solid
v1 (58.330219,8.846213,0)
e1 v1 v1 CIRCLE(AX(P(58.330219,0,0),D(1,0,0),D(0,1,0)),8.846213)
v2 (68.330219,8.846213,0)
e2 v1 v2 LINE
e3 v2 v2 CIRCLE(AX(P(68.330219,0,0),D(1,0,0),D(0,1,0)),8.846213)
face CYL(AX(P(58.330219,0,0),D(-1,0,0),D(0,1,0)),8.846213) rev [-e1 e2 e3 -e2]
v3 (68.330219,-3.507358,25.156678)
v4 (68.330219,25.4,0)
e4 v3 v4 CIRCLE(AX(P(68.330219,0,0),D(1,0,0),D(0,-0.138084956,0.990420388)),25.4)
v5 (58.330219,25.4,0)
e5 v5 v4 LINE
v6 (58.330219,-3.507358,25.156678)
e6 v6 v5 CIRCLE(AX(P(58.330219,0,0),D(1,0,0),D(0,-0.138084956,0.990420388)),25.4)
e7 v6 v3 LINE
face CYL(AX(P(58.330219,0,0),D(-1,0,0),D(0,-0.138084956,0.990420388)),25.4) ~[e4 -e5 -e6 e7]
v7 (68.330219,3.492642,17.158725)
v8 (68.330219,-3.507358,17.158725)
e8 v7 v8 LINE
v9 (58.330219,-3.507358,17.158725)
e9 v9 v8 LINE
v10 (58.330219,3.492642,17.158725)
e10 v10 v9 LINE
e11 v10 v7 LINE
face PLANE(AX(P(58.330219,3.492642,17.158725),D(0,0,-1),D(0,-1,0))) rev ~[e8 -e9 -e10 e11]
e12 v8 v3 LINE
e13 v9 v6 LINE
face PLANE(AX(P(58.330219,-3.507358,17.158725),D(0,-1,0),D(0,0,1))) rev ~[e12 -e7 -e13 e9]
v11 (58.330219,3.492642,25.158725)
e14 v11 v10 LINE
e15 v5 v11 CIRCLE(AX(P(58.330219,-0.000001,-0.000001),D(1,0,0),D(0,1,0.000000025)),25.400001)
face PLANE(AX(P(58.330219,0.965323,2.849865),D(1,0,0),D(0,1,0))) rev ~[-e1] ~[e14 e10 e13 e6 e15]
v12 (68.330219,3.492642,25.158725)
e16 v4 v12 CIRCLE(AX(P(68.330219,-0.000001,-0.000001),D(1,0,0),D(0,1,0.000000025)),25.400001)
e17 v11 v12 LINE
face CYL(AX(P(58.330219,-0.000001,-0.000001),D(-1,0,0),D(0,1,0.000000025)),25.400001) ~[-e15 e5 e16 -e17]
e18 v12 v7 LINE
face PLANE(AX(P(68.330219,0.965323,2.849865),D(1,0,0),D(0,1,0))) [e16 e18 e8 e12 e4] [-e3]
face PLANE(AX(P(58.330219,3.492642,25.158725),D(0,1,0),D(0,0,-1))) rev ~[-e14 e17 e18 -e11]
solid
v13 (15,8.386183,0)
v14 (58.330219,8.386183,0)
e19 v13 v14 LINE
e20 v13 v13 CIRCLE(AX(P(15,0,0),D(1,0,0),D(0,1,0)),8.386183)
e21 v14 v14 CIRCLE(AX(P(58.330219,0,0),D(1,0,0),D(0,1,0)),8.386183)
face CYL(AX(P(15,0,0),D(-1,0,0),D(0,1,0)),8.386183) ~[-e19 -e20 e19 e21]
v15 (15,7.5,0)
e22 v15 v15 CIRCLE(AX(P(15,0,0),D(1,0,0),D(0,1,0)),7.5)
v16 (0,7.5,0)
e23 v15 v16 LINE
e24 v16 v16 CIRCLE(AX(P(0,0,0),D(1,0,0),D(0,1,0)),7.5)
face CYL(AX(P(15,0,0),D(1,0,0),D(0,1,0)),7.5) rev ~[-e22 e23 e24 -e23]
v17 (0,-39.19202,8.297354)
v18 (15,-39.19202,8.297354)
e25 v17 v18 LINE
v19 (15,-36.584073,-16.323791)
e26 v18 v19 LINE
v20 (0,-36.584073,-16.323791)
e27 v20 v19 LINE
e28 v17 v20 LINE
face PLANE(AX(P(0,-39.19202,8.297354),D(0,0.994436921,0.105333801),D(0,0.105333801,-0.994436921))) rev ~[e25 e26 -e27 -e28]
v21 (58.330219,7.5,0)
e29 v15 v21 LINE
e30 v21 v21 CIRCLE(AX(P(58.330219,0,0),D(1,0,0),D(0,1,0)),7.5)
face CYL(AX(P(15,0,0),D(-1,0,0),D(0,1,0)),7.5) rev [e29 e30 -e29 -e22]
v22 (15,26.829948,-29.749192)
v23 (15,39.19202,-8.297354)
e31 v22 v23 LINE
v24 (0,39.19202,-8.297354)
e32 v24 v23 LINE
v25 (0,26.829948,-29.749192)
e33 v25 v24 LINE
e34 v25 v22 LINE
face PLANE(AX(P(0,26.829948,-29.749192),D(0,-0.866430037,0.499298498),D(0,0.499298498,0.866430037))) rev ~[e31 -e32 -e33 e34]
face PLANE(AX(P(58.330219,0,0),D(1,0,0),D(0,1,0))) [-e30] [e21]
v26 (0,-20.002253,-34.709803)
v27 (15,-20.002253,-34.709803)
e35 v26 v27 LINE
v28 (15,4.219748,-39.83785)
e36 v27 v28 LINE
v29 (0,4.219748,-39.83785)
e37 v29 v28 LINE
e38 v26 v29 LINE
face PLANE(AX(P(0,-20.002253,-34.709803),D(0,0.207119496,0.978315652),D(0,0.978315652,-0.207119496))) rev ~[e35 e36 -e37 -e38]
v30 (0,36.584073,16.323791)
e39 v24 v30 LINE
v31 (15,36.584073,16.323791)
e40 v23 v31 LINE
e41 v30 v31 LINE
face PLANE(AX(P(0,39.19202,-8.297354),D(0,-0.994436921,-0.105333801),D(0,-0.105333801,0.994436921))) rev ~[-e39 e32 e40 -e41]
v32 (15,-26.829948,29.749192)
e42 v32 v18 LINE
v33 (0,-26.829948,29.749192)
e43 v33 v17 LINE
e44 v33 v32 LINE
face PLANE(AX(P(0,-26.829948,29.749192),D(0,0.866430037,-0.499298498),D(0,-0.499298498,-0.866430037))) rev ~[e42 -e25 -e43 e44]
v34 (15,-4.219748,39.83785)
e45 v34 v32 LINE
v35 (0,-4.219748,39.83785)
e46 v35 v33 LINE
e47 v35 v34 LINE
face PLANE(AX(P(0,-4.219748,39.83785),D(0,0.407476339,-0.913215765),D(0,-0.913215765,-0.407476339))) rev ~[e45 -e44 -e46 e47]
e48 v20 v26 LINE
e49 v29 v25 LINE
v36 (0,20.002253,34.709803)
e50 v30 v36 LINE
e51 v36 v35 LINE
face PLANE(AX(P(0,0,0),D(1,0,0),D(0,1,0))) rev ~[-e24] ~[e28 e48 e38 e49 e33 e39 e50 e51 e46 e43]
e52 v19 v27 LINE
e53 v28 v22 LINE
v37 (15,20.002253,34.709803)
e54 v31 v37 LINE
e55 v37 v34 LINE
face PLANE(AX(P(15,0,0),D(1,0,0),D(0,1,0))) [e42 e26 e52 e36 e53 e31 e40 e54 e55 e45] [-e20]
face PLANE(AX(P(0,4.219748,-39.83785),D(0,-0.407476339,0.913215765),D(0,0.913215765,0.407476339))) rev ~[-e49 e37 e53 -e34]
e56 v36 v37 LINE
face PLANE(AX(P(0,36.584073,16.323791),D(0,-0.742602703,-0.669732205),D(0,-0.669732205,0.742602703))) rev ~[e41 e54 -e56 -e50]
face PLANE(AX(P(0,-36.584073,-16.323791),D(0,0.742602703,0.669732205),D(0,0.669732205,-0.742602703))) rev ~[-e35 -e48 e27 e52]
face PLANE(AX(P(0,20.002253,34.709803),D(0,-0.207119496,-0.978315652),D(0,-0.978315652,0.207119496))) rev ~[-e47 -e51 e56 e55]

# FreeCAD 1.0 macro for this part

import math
import FreeCAD as App
import Part
import Sketcher
from FreeCAD import Vector

doc = App.newDocument("Part")
body = doc.addObject("PartDesign::Body", "Body")

sketch1 = body.newObject("Sketcher::SketchObject", "Sketch")
sketch1.AttachmentSupport = (doc.getObject("YZ_Plane"), [""])
sketch1.MapMode = "FlatFace"
sketch1.addGeometry(Part.LineSegment(Vector(27, -30, 0), Vector(39, -8, 0)), False)
sketch1.addGeometry(Part.LineSegment(Vector(39, -8, 0), Vector(37, 16, 0)), False)
sketch1.addGeometry(Part.LineSegment(Vector(37, 16, 0), Vector(20, 35, 0)), False)
sketch1.addGeometry(Part.LineSegment(Vector(20, 35, 0), Vector(-4, 40, 0)), False)
sketch1.addGeometry(Part.LineSegment(Vector(-4, 40, 0), Vector(-27, 30, 0)), False)
sketch1.addGeometry(Part.LineSegment(Vector(-27, 30, 0), Vector(-39, 8, 0)), False)
sketch1.addGeometry(Part.LineSegment(Vector(-39, 8, 0), Vector(-37, -16, 0)), False)
sketch1.addGeometry(Part.LineSegment(Vector(-37, -16, 0), Vector(-20, -35, 0)), False)
sketch1.addGeometry(Part.LineSegment(Vector(-20, -35, 0), Vector(4, -40, 0)), False)
sketch1.addGeometry(Part.LineSegment(Vector(4, -40, 0), Vector(27, -30, 0)), False)
sketch1.addConstraint(Sketcher.Constraint("Coincident", 0, 2, 1, 1))
sketch1.addConstraint(Sketcher.Constraint("Coincident", 1, 2, 2, 1))
sketch1.addConstraint(Sketcher.Constraint("Coincident", 2, 2, 3, 1))
sketch1.addConstraint(Sketcher.Constraint("Coincident", 3, 2, 4, 1))
sketch1.addConstraint(Sketcher.Constraint("Coincident", 4, 2, 5, 1))
sketch1.addConstraint(Sketcher.Constraint("Coincident", 5, 2, 6, 1))
sketch1.addConstraint(Sketcher.Constraint("Coincident", 6, 2, 7, 1))
sketch1.addConstraint(Sketcher.Constraint("Coincident", 7, 2, 8, 1))
sketch1.addConstraint(Sketcher.Constraint("Coincident", 8, 2, 9, 1))
sketch1.addConstraint(Sketcher.Constraint("Coincident", 9, 2, 0, 1))
sketch1.addConstraint(Sketcher.Constraint("Symmetric", 0, 2, 5, 2, -1, 1))
sketch1.addConstraint(Sketcher.Constraint("Symmetric", 1, 2, 6, 2, -1, 1))
sketch1.addConstraint(Sketcher.Constraint("Symmetric", 2, 2, 7, 2, -1, 1))
sketch1.addConstraint(Sketcher.Constraint("Symmetric", 3, 2, 8, 2, -1, 1))
sketch1.addConstraint(Sketcher.Constraint("Symmetric", 4, 2, 9, 2, -1, 1))
sketch1.addConstraint(Sketcher.Constraint("Equal", 0, 1))
sketch1.addConstraint(Sketcher.Constraint("Equal", 1, 2))
sketch1.addConstraint(Sketcher.Constraint("Equal", 2, 3))
sketch1.addConstraint(Sketcher.Constraint("Equal", 3, 4))
sketch1.addConstraint(Sketcher.Constraint("DistanceX", 3, 2, 2, 2, 24.222001))
sketch1.addConstraint(Sketcher.Constraint("DistanceX", 4, 2, 3, 2, 22.6102))
sketch1.addConstraint(Sketcher.Constraint("DistanceY", 1, 2, 4, 2, 13.425401))
sketch1.addConstraint(Sketcher.Constraint("Distance", 0, 24.758881))
sketch1.addConstraint(Sketcher.Constraint("DistanceX", -1, 1, 0, 2, 39.19202))
sketch1.addConstraint(Sketcher.Constraint("DistanceY", -1, 1, 1, 2, 16.323791))
pad1 = body.newObject("PartDesign::Pad", "Pad")
pad1.Profile = sketch1
pad1.Length = 15

sketch2 = body.newObject("Sketcher::SketchObject", "Sketch001")
sketch2.AttachmentSupport = (doc.getObject("YZ_Plane"), [""])
sketch2.MapMode = "FlatFace"
sketch2.AttachmentOffset = App.Placement(Vector(0, 0, 15), App.Rotation())
sketch2.addGeometry(Part.Circle(Vector(0, 0, 0), Vector(0, 0, 1), 8), False)
sketch2.addConstraint(Sketcher.Constraint("Coincident", 0, 3, -1, 1))
sketch2.addConstraint(Sketcher.Constraint("Diameter", 0, 15.0))
pocket1 = body.newObject("PartDesign::Pocket", "Pocket")
pocket1.Profile = sketch2
pocket1.Length = 25.4

sketch3 = body.newObject("Sketcher::SketchObject", "Sketch002")
sketch3.AttachmentSupport = (doc.getObject("YZ_Plane"), [""])
sketch3.MapMode = "FlatFace"
sketch3.AttachmentOffset = App.Placement(Vector(0, 0, 15), App.Rotation())
sketch3.addGeometry(Part.Circle(Vector(0, 0, 0), Vector(0, 0, 1), 8), False)
sketch3.addGeometry(Part.Circle(Vector(0, 0, 0), Vector(0, 0, 1), 8), False)
sketch3.addConstraint(Sketcher.Constraint("Coincident", 0, 3, -1, 1))
sketch3.addConstraint(Sketcher.Constraint("Coincident", 1, 3, -1, 1))
sketch3.addConstraint(Sketcher.Constraint("Diameter", 1, 15.0))
sketch3.addConstraint(Sketcher.Constraint("Diameter", 0, 16.772366))
pad2 = body.newObject("PartDesign::Pad", "Pad001")
pad2.Profile = sketch3
pad2.Length = 43.330219
body2 = doc.addObject("PartDesign::Body", "Body001")

sketch4 = body2.newObject("Sketcher::SketchObject", "Sketch003")
sketch4.AttachmentSupport = (doc.getObject("YZ_Plane001"), [""])
sketch4.MapMode = "FlatFace"
sketch4.AttachmentOffset = App.Placement(Vector(0, 0, 58.330219), App.Rotation())
sketch4.addGeometry(Part.ArcOfCircle(Part.Circle(Vector(0, 0, 0), Vector(0, 0, 1), 25), math.radians(98), math.radians(360)), False)
sketch4.addGeometry(Part.ArcOfCircle(Part.Circle(Vector(0, 0, 0), Vector(0, 0, 1), 25), math.radians(0), math.radians(82)), False)
sketch4.addGeometry(Part.LineSegment(Vector(3, 25, 0), Vector(3, 17, 0)), False)
sketch4.addGeometry(Part.LineSegment(Vector(3, 17, 0), Vector(-4, 17, 0)), False)
sketch4.addGeometry(Part.LineSegment(Vector(-4, 17, 0), Vector(-4, 25, 0)), False)
sketch4.addGeometry(Part.Circle(Vector(0, 0, 0), Vector(0, 0, 1), 9), False)
sketch4.addConstraint(Sketcher.Constraint("Tangent", 0, 2, 1, 1))
sketch4.addConstraint(Sketcher.Constraint("Coincident", 1, 2, 2, 1))
sketch4.addConstraint(Sketcher.Constraint("Coincident", 2, 2, 3, 1))
sketch4.addConstraint(Sketcher.Constraint("Coincident", 3, 2, 4, 1))
sketch4.addConstraint(Sketcher.Constraint("Coincident", 4, 2, 0, 1))
sketch4.addConstraint(Sketcher.Constraint("Vertical", 2))
sketch4.addConstraint(Sketcher.Constraint("Horizontal", 3))
sketch4.addConstraint(Sketcher.Constraint("Vertical", 4))
sketch4.addConstraint(Sketcher.Constraint("Coincident", 0, 3, -1, 1))
sketch4.addConstraint(Sketcher.Constraint("Coincident", 5, 3, -1, 1))
sketch4.addConstraint(Sketcher.Constraint("Equal", 0, 1))
sketch4.addConstraint(Sketcher.Constraint("PointOnObject", 0, 2, -1))
sketch4.addConstraint(Sketcher.Constraint("Radius", 0, 25.4))
sketch4.addConstraint(Sketcher.Constraint("DistanceX", 3, 2, 3, 1, 7.0))
sketch4.addConstraint(Sketcher.Constraint("DistanceY", 2, 2, 2, 1, 8.0))
sketch4.addConstraint(Sketcher.Constraint("Diameter", 5, 17.692426))
sketch4.addConstraint(Sketcher.Constraint("DistanceY", 4, 1, 4, 2, 7.997953))
pad3 = body2.newObject("PartDesign::Pad", "Pad002")
pad3.Profile = sketch4
pad3.Length = 10

doc.recompute()
